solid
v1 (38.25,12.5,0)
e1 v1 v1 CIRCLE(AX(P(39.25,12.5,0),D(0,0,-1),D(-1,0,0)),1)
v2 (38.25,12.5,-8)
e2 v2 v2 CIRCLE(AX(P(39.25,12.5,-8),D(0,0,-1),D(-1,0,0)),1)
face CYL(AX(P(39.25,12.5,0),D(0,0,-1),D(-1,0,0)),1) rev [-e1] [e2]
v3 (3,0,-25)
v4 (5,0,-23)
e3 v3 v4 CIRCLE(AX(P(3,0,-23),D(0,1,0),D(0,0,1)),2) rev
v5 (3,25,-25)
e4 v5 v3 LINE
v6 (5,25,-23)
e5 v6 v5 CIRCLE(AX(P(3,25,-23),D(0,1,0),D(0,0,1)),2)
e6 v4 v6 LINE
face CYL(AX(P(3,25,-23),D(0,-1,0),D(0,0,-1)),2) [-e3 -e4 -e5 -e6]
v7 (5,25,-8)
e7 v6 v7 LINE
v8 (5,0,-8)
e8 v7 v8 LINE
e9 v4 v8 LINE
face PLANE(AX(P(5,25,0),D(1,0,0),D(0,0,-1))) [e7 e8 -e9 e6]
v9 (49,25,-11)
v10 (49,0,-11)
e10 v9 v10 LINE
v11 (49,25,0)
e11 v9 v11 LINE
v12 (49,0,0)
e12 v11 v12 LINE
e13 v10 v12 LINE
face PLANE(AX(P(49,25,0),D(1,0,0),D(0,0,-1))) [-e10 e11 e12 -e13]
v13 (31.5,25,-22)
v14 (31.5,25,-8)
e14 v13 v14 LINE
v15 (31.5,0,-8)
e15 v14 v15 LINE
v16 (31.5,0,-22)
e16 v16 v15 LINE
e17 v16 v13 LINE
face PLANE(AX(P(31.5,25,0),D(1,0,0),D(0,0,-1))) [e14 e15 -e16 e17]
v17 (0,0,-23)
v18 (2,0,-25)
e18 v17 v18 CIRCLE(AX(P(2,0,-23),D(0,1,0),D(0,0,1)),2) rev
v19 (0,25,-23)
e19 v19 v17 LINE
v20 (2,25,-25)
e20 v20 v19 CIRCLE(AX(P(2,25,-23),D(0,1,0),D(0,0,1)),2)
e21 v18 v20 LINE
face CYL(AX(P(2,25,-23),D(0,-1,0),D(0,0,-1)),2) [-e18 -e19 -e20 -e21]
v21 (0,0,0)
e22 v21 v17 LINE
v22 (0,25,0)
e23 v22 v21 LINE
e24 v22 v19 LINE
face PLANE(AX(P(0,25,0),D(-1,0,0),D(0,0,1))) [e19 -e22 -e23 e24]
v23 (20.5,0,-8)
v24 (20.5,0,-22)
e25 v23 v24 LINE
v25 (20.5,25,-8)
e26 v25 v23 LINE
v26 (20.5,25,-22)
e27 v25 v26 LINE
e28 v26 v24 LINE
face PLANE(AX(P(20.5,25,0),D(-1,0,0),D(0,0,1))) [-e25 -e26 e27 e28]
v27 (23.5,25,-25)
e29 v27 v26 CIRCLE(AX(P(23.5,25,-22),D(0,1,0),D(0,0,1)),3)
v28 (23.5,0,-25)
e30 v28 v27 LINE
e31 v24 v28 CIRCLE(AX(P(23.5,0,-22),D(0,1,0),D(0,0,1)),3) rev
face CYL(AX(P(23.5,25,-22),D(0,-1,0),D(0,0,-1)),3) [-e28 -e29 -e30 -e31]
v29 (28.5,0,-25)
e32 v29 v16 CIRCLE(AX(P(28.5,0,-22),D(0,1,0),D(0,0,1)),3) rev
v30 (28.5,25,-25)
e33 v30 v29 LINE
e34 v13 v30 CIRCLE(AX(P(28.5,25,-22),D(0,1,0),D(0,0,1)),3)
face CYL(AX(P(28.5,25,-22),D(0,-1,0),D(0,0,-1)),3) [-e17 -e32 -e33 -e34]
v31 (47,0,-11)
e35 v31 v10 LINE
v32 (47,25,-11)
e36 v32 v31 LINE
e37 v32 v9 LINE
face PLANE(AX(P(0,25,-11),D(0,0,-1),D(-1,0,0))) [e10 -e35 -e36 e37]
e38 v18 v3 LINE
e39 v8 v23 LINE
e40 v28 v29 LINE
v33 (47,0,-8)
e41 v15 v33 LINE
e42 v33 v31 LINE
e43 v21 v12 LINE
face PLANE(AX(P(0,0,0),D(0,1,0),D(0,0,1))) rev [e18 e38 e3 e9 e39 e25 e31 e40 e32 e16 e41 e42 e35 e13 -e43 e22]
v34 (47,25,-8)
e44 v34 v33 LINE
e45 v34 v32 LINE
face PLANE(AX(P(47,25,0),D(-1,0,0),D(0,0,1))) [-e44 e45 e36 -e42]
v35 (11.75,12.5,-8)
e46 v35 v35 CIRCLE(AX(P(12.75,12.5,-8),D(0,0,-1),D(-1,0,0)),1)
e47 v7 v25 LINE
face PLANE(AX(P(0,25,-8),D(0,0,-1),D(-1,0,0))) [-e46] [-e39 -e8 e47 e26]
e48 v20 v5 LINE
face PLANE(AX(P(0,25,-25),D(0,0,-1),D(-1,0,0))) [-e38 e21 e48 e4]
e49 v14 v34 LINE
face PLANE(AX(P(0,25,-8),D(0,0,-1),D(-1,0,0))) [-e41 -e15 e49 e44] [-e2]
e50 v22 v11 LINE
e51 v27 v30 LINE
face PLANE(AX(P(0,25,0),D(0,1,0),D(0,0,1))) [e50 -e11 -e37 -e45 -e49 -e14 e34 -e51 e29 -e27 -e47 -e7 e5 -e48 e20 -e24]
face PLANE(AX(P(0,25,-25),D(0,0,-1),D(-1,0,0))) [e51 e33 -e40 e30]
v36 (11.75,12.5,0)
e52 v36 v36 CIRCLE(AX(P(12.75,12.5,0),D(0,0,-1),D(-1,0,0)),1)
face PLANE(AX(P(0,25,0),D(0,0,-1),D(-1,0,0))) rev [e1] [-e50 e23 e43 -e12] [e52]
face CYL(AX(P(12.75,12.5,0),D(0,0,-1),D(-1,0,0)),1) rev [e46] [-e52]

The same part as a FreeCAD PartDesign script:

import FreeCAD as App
import Part
import Sketcher
from FreeCAD import Vector


def edges_at(feature, points):
    """Names of the edges that pass closest to the given points."""
    edges = feature.Shape.Edges
    near = lambda p: min(range(len(edges)), key=lambda i: edges[i].distToShape(Part.Vertex(*p))[0])
    return sorted({f"Edge{near(p) + 1}" for p in points})

doc = App.newDocument("Part")
body = doc.addObject("PartDesign::Body", "Body")

sketch1 = doc.addObject("Sketcher::SketchObject", "Sketch")
body.addObject(sketch1)
sketch1.AttachmentSupport = (doc.XZ_Plane, [""])
sketch1.MapMode = "FlatFace"
sketch1.addGeometry([
    Part.LineSegment(Vector(0, 0, 0), Vector(49, 0, 0)),
    Part.LineSegment(Vector(49, 0, 0), Vector(49, -11, 0)),
    Part.LineSegment(Vector(49, -11, 0), Vector(47, -11, 0)),
    Part.LineSegment(Vector(47, -11, 0), Vector(47, -8, 0)),
    Part.LineSegment(Vector(47, -8, 0), Vector(31.5, -8, 0)),
    Part.LineSegment(Vector(31.5, -8, 0), Vector(31.5, -25, 0)),
    Part.LineSegment(Vector(31.5, -25, 0), Vector(20.5, -25, 0)),
    Part.LineSegment(Vector(20.5, -25, 0), Vector(20.5, -8, 0)),
    Part.LineSegment(Vector(20.5, -8, 0), Vector(5, -8, 0)),
    Part.LineSegment(Vector(5, -8, 0), Vector(5, -25, 0)),
    Part.LineSegment(Vector(5, -25, 0), Vector(0, -25, 0)),
    Part.LineSegment(Vector(0, -25, 0), Vector(0, 0, 0)),
], False)
sketch1.addConstraint([
    Sketcher.Constraint("Coincident", 0, 2, 1, 1),
    Sketcher.Constraint("Coincident", 1, 2, 2, 1),
    Sketcher.Constraint("Coincident", 2, 2, 3, 1),
    Sketcher.Constraint("Coincident", 3, 2, 4, 1),
    Sketcher.Constraint("Coincident", 4, 2, 5, 1),
    Sketcher.Constraint("Coincident", 5, 2, 6, 1),
    Sketcher.Constraint("Coincident", 6, 2, 7, 1),
    Sketcher.Constraint("Coincident", 7, 2, 8, 1),
    Sketcher.Constraint("Coincident", 8, 2, 9, 1),
    Sketcher.Constraint("Coincident", 9, 2, 10, 1),
    Sketcher.Constraint("Coincident", 10, 2, 11, 1),
    Sketcher.Constraint("Coincident", 11, 2, 0, 1),
    Sketcher.Constraint("Horizontal", 0),
    Sketcher.Constraint("Vertical", 1),
    Sketcher.Constraint("Horizontal", 2),
    Sketcher.Constraint("Vertical", 3),
    Sketcher.Constraint("Horizontal", 4),
    Sketcher.Constraint("Vertical", 5),
    Sketcher.Constraint("Horizontal", 6),
    Sketcher.Constraint("Vertical", 7),
    Sketcher.Constraint("Horizontal", 8),
    Sketcher.Constraint("Vertical", 9),
    Sketcher.Constraint("Horizontal", 10),
    Sketcher.Constraint("Vertical", 11),
    Sketcher.Constraint("Coincident", 11, 2, -1, 1),
    Sketcher.Constraint("Horizontal", 4, 2, 7, 2),
    Sketcher.Constraint("Horizontal", 6, 2, 9, 2),
    Sketcher.Constraint("Equal", 4, 8),
    Sketcher.Constraint("Equal", 6, 1),
    Sketcher.Constraint("DistanceX", 0, 1, 0, 2, 49.0),
    Sketcher.Constraint("DistanceX", 2, 2, 2, 1, 2.0),
    Sketcher.Constraint("DistanceX", 6, 2, 6, 1, 11.0),
    Sketcher.Constraint("DistanceX", 10, 2, 10, 1, 5.0),
    Sketcher.Constraint("DistanceY", 3, 1, 3, 2, 3.0),
    Sketcher.Constraint("DistanceY", 5, 2, 5, 1, 17.0),
])
pad1 = doc.addObject("PartDesign::Pad", "Pad")
body.addObject(pad1)
pad1.Profile = sketch1
pad1.Length = 25
pad1.Reversed = True
doc.recompute()

fillet = doc.addObject("PartDesign::Fillet", "Fillet")
body.addObject(fillet)
fillet.Base = (pad1, edges_at(pad1, [(20.5, 12.5, -25), (31.5, 12.5, -25)]))
fillet.Radius = 3
doc.recompute()

fillet2 = doc.addObject("PartDesign::Fillet", "Fillet001")
body.addObject(fillet2)
fillet2.Base = (fillet, edges_at(fillet, [(0, 12.5, -25), (5, 12.5, -25)]))
fillet2.Radius = 2

sketch2 = doc.addObject("Sketcher::SketchObject", "Sketch001")
body.addObject(sketch2)
sketch2.AttachmentSupport = (doc.XY_Plane, [""])
sketch2.MapMode = "FlatFace"
sketch2.AttachmentOffset = App.Placement(Vector(0, 0, -8), App.Rotation())
sketch2.addGeometry([
    Part.Circle(Vector(39.25, 12.5, 0), Vector(0, 0, 1), 1),
    Part.Circle(Vector(12.75, 12.5, 0), Vector(0, 0, 1), 1),
], False)
sketch2.addConstraint([
    Sketcher.Constraint("Equal", 0, 1),
    Sketcher.Constraint("Horizontal", 0, 3, 1, 3),
    Sketcher.Constraint("Diameter", 0, 2.0),
    Sketcher.Constraint("DistanceY", -1, 1, 0, 3, 12.5),
    Sketcher.Constraint("DistanceX", 1, 3, 0, 3, 26.5),
    Sketcher.Constraint("DistanceX", -1, 1, 0, 3, 39.25),
])
pocket1 = doc.addObject("PartDesign::Pocket", "Pocket")
body.addObject(pocket1)
pocket1.Profile = sketch2
pocket1.Type = "ThroughAll"
pocket1.Reversed = True

doc.recompute()
